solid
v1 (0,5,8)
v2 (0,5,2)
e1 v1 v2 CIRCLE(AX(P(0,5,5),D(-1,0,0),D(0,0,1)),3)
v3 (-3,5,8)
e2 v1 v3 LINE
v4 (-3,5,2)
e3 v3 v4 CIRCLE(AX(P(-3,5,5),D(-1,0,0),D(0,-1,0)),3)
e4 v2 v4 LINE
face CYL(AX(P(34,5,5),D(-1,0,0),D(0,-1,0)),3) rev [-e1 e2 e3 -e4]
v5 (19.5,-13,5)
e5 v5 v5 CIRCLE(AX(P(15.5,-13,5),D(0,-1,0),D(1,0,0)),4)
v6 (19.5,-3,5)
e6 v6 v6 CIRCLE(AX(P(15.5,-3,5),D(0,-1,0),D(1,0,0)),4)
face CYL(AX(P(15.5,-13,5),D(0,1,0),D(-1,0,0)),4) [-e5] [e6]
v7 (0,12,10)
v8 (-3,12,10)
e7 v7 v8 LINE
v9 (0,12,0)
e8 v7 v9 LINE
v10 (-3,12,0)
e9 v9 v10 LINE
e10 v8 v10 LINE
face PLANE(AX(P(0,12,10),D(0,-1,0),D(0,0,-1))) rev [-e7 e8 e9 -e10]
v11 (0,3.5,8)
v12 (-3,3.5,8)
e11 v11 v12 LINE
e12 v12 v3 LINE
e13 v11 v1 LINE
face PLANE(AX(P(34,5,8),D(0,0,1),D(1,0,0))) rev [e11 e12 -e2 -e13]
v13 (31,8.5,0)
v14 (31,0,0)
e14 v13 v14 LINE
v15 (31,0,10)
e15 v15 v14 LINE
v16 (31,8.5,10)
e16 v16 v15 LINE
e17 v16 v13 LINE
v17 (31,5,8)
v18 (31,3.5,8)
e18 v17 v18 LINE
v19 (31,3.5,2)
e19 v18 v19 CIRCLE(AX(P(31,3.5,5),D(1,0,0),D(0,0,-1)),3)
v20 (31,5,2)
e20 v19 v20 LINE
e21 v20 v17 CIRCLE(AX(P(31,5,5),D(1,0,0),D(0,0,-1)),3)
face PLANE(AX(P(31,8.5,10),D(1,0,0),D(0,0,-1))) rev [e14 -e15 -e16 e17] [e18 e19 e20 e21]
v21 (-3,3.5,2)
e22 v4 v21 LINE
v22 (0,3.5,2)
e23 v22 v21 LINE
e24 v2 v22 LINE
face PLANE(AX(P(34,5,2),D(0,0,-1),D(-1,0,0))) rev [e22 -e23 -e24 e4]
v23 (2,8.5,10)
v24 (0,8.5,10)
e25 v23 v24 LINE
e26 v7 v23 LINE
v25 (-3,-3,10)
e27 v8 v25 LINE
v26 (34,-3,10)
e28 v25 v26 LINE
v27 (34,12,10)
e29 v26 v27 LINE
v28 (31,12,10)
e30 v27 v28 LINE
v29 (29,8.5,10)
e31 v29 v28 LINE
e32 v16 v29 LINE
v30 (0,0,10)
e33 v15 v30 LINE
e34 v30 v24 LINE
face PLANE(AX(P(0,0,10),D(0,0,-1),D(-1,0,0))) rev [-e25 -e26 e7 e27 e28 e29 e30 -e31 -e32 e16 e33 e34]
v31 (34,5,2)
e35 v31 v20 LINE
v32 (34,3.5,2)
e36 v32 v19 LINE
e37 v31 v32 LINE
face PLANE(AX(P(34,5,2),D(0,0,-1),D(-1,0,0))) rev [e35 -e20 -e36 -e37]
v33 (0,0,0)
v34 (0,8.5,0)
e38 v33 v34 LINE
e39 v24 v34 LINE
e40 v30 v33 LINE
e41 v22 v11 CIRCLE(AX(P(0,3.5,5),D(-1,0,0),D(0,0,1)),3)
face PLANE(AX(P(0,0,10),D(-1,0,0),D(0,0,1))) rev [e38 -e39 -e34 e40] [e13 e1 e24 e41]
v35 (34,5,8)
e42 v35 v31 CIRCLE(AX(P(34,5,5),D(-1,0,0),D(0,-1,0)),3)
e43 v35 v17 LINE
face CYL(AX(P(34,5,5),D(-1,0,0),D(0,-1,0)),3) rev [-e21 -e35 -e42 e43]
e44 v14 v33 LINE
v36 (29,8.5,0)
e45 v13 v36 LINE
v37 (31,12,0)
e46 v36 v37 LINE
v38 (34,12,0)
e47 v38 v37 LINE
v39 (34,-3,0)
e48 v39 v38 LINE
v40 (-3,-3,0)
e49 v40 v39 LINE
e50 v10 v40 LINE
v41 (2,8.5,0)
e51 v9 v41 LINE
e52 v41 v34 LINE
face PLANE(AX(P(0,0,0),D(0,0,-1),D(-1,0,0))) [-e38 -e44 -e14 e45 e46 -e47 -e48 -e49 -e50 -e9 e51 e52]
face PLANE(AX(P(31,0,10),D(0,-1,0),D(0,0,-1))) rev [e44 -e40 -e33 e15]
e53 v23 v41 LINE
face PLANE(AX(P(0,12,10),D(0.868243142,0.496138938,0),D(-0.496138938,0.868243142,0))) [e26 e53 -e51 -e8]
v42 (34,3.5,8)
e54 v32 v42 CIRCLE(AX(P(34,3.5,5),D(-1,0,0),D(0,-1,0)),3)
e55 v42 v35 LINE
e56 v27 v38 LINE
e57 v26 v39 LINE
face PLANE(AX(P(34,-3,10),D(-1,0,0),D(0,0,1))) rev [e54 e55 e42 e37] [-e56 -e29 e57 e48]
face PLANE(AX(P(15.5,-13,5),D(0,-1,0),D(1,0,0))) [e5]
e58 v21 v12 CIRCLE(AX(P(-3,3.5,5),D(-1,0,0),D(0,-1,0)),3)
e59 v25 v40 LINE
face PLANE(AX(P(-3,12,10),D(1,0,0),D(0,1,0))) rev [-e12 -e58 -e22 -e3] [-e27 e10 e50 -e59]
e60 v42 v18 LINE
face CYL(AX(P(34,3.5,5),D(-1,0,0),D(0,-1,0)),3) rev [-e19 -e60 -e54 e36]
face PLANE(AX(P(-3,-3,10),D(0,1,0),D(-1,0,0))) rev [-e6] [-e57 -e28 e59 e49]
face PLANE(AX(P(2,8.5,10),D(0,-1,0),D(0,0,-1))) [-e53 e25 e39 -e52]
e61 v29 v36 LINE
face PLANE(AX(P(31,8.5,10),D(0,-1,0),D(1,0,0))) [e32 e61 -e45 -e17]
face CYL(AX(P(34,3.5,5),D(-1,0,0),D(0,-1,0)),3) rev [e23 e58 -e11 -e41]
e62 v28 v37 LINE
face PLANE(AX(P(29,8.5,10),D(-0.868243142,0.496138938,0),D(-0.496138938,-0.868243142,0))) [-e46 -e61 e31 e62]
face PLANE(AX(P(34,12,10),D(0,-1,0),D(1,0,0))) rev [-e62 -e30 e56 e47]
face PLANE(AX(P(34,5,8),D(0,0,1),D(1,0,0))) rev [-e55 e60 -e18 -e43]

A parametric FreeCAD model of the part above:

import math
import FreeCAD as App
import Part
import Sketcher

V = App.Vector
Q = App.Units.Quantity


def add_polygon(sketch, points):
    """Adds a closed chain of lines whose ends are joined by coincident constraints."""
    first, n = sketch.GeometryCount, len(points)
    for a, b in zip(points, points[1:] + points[:1]):
        sketch.addGeometry(Part.LineSegment(App.Vector(*a, 0), App.Vector(*b, 0)), False)
    for i in range(n):
        sketch.addConstraint(Sketcher.Constraint("Coincident", first + i, 2, first + (i + 1) % n, 1))

doc = App.newDocument("Part")
body = doc.addObject("PartDesign::Body", "Body")

# Sketch on XY plane
sketch1 = doc.addObject("Sketcher::SketchObject", "Sketch")
body.addObject(sketch1)
sketch1.AttachmentSupport = (doc.XY_Plane, [""])
sketch1.MapMode = "FlatFace"
add_polygon(sketch1, [(0, 0), (0, 8.5), (2, 8.5), (0, 12), (-3, 12), (-3, -3), (34, -3), (34, 12), (31, 12), (29, 8.5), (31, 8.5), (31, 0)])  # lines 0-11
sketch1.addConstraint([
    Sketcher.Constraint("Vertical", 0),
    Sketcher.Constraint("Horizontal", 1),
    Sketcher.Constraint("Horizontal", 3),
    Sketcher.Constraint("Vertical", 4),
    Sketcher.Constraint("Horizontal", 5),
    Sketcher.Constraint("Vertical", 6),
    Sketcher.Constraint("Horizontal", 7),
    Sketcher.Constraint("Horizontal", 9),
    Sketcher.Constraint("Vertical", 10),
    Sketcher.Constraint("Horizontal", 11),
    Sketcher.Constraint("Coincident", 11, 2, -1, 1),
    Sketcher.Constraint("PointOnObject", 2, 2, -2),
    Sketcher.Constraint("Horizontal", 3, 2, 6, 2),
    Sketcher.Constraint("Horizontal", 1, 2, 8, 2),
    Sketcher.Constraint("Vertical", 7, 2, 9, 2),
    Sketcher.Constraint("Equal", 3, 7),
    Sketcher.Constraint("Equal", 1, 9),
    Sketcher.Constraint("DistanceX", 1, 1, 1, 2, Q("2 mm")),
    Sketcher.Constraint("DistanceX", 3, 2, 3, 1, Q("3 mm")),
    Sketcher.Constraint("DistanceX", 5, 1, 5, 2, Q("37 mm")),
    Sketcher.Constraint("DistanceY", 4, 2, 4, 1, Q("15 mm")),
    Sketcher.Constraint("DistanceY", 0, 1, 0, 2, Q("8.5 mm")),
    Sketcher.Constraint("DistanceY", -1, 1, 2, 2, Q("12 mm")),
])
pad1 = doc.addObject("PartDesign::Pad", "Pad")
body.addObject(pad1)
pad1.Profile = sketch1
pad1.Length = 10

# Sketch on YZ plane
sketch2 = doc.addObject("Sketcher::SketchObject", "Sketch001")
body.addObject(sketch2)
sketch2.AttachmentSupport = (doc.YZ_Plane, [""])
sketch2.MapMode = "FlatFace"
sketch2.AttachmentOffset = App.Placement(V(0, 0, -3), App.Rotation())
sketch2.addGeometry([
    Part.LineSegment(V(3.5, 8, 0), V(5, 8, 0)),
    Part.ArcOfCircle(Part.Circle(V(5, 5, 0), V(0, 0, 1), 3), math.radians(-90), math.radians(90)),
    Part.LineSegment(V(5, 2, 0), V(3.5, 2, 0)),
    Part.ArcOfCircle(Part.Circle(V(3.5, 5, 0), V(0, 0, 1), 3), math.radians(90), math.radians(270)),
], False)
sketch2.addConstraint([
    Sketcher.Constraint("Tangent", 0, 2, 1, 2),
    Sketcher.Constraint("Tangent", 1, 1, 2, 1),
    Sketcher.Constraint("Tangent", 2, 2, 3, 2),
    Sketcher.Constraint("Tangent", 3, 1, 0, 1),
    Sketcher.Constraint("Horizontal", 0),
    Sketcher.Constraint("Horizontal", 2),
    Sketcher.Constraint("Radius", 1, Q("3 mm")),
    Sketcher.Constraint("DistanceX", 0, 1, 0, 2, Q("1.5 mm")),
    Sketcher.Constraint("DistanceX", -1, 1, 1, 3, Q("5 mm")),
    Sketcher.Constraint("DistanceY", -1, 1, 1, 3, Q("5 mm")),
])
pocket1 = doc.addObject("PartDesign::Pocket", "Pocket")
body.addObject(pocket1)
pocket1.Profile = sketch2
pocket1.Type = "ThroughAll"
pocket1.Reversed = True

# Sketch on XZ plane
sketch3 = doc.addObject("Sketcher::SketchObject", "Sketch002")
body.addObject(sketch3)
sketch3.AttachmentSupport = (doc.XZ_Plane, [""])
sketch3.MapMode = "FlatFace"
sketch3.AttachmentOffset = App.Placement(V(0, 0, 3), App.Rotation())
sketch3.addGeometry(Part.Circle(V(15.5, 5, 0), V(0, 0, 1), 4), False)
sketch3.addConstraint([
    Sketcher.Constraint("Diameter", 0, Q("8 mm")),
    Sketcher.Constraint("DistanceY", -1, 1, 0, 3, Q("5 mm")),
    Sketcher.Constraint("DistanceX", -1, 1, 0, 3, Q("15.5 mm")),
])
pad2 = doc.addObject("PartDesign::Pad", "Pad001")
body.addObject(pad2)
pad2.Profile = sketch3
pad2.Length = 10

doc.recompute()
